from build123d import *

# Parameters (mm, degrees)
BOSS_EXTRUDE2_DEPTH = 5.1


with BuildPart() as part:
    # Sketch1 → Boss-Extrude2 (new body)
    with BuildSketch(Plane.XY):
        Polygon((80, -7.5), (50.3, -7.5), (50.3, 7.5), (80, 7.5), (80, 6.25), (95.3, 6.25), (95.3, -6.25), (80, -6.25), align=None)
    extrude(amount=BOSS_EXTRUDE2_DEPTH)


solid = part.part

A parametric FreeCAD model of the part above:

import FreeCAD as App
import Part
import Sketcher
Q = App.Units.Quantity


def add_polygon(sketch, points):
    """Adds a closed chain of lines whose ends are joined by coincident constraints."""
    first, n = sketch.GeometryCount, len(points)
    for a, b in zip(points, points[1:] + points[:1]):
        sketch.addGeometry(Part.LineSegment(App.Vector(*a, 0), App.Vector(*b, 0)), False)
    for i in range(n):
        sketch.addConstraint(Sketcher.Constraint("Coincident", first + i, 2, first + (i + 1) % n, 1))

doc = App.newDocument("Part")
body = doc.addObject("PartDesign::Body", "Body")

sketch1 = body.newObject("Sketcher::SketchObject", "Sketch")
sketch1.AttachmentSupport = (doc.getObject("XY_Plane"), [""])
sketch1.MapMode = "FlatFace"
add_polygon(sketch1, [(50.3, -7.5), (80, -7.5), (80, -6.25), (95.3, -6.25), (95.3, 6.25), (80, 6.25), (80, 7.5), (50.3, 7.5)])
sketch1.addConstraint(Sketcher.Constraint("Horizontal", 0))
sketch1.addConstraint(Sketcher.Constraint("Vertical", 1))
sketch1.addConstraint(Sketcher.Constraint("Horizontal", 2))
sketch1.addConstraint(Sketcher.Constraint("Vertical", 3))
sketch1.addConstraint(Sketcher.Constraint("Horizontal", 4))
sketch1.addConstraint(Sketcher.Constraint("Vertical", 5))
sketch1.addConstraint(Sketcher.Constraint("Horizontal", 6))
sketch1.addConstraint(Sketcher.Constraint("Vertical", 7))
sketch1.addConstraint(Sketcher.Constraint("Symmetric", 1, 2, 4, 2, -1))
sketch1.addConstraint(Sketcher.Constraint("Equal", 1, 5))
sketch1.addConstraint(Sketcher.Constraint("DistanceY", 7, 2, 7, 1, Q("15 mm")))
sketch1.addConstraint(Sketcher.Constraint("DistanceX", 0, 1, 0, 2, Q("29.7 mm")))
sketch1.addConstraint(Sketcher.Constraint("DistanceX", 2, 1, 2, 2, Q("15.3 mm")))
sketch1.addConstraint(Sketcher.Constraint("DistanceY", 3, 1, 3, 2, Q("12.5 mm")))
sketch1.addConstraint(Sketcher.Constraint("DistanceX", -1, 1, 0, 2, Q("80 mm")))
pad1 = body.newObject("PartDesign::Pad", "Pad")
pad1.Profile = sketch1
pad1.Length = 5.1

doc.recompute()
